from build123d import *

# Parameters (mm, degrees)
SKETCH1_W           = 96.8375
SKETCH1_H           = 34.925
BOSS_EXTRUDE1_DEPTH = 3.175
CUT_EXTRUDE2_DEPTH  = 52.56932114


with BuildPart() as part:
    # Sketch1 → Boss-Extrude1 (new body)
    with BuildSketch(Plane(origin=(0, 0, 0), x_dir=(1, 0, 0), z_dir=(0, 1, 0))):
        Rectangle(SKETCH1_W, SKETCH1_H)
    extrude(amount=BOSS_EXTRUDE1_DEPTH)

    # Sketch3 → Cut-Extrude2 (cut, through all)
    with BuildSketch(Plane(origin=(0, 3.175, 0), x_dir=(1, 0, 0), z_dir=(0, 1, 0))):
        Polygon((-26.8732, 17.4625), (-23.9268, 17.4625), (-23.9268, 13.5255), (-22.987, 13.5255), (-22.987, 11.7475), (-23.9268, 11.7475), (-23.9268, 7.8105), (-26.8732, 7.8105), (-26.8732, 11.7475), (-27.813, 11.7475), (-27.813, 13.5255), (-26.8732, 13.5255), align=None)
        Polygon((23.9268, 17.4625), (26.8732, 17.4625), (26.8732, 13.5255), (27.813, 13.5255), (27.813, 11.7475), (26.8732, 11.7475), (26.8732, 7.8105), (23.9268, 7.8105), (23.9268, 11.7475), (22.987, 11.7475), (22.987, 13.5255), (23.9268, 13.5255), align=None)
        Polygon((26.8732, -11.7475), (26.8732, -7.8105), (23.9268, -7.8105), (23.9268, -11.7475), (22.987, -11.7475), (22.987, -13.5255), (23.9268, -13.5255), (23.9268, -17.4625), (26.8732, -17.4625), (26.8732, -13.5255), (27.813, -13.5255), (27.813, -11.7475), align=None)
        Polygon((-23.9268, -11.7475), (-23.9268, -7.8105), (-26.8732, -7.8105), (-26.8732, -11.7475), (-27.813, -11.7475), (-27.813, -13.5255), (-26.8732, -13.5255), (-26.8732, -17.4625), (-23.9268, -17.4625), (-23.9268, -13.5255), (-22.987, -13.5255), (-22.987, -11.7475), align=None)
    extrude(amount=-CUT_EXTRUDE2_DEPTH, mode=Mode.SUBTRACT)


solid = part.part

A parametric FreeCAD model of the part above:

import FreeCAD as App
import Part
import Sketcher
Q = App.Units.Quantity


def add_polygon(sketch, points):
    """Adds a closed chain of lines whose ends are joined by coincident constraints."""
    first, n = sketch.GeometryCount, len(points)
    for a, b in zip(points, points[1:] + points[:1]):
        sketch.addGeometry(Part.LineSegment(App.Vector(*a, 0), App.Vector(*b, 0)), False)
    for i in range(n):
        sketch.addConstraint(Sketcher.Constraint("Coincident", first + i, 2, first + (i + 1) % n, 1))

doc = App.newDocument("Part")
params = doc.addObject("Spreadsheet::Sheet", "Params")
for row, (alias, value) in enumerate([
    ("sketch1_width", "3.8125 in"),
    ("sketch1_height", "1.375 in"),
    ("pad1_length", "0.125 in"),
    ("sketch2_height", "0.07 in"),
    ("sketch2_width", "0.116 in"),
    ("sketch2_width2", "0.037 in"),
    ("sketch2_height2", "0.155 in"),
], start=1):
    params.set(f"A{row}", alias)
    params.set(f"B{row}", "=" + value)
    params.setAlias(f"B{row}", alias)

body = doc.addObject("PartDesign::Body", "Body")

sketch1 = body.newObject("Sketcher::SketchObject", "Sketch")
sketch1.AttachmentSupport = (doc.getObject("XZ_Plane"), [""])
sketch1.MapMode = "FlatFace"
add_polygon(sketch1, [(-48, -17), (-48, 17), (48, 17), (48, -17)])
sketch1.addConstraint([
    Sketcher.Constraint("Vertical", 0),
    Sketcher.Constraint("Horizontal", 1),
    Sketcher.Constraint("Vertical", 2),
    Sketcher.Constraint("Horizontal", 3),
    Sketcher.Constraint("Symmetric", 0, 2, 2, 2, -1, 1),
    Sketcher.Constraint("DistanceX", 1, 1, 1, 2, Q("3.8125 in")),
    Sketcher.Constraint("DistanceY", 0, 1, 0, 2, Q("1.375 in")),
])
sketch1.setExpression("Constraints[9]", "Params.sketch1_width")
sketch1.setExpression("Constraints[10]", "Params.sketch1_height")
pad1 = body.newObject("PartDesign::Pad", "Pad")
pad1.Profile = sketch1
pad1.setExpression("Length", "Params.pad1_length")
pad1.Reversed = True

sketch2 = body.newObject("Sketcher::SketchObject", "Sketch001")
sketch2.AttachmentSupport = (doc.getObject("XZ_Plane"), [""])
sketch2.MapMode = "FlatFace"
sketch2.AttachmentOffset = App.Placement(App.Vector(0, 0, -0.125 * 25.4), App.Rotation())
add_polygon(sketch2, [(-23.9, -17.5), (-26.9, -17.5), (-26.9, -13.5), (-27.8, -13.5), (-27.8, -11.7), (-26.9, -11.7), (-26.9, -7.8), (-23.9, -7.8), (-23.9, -11.7), (-23, -11.7), (-23, -13.5), (-23.9, -13.5)])
add_polygon(sketch2, [(26.9, -17.5), (23.9, -17.5), (23.9, -13.5), (23, -13.5), (23, -11.7), (23.9, -11.7), (23.9, -7.8), (26.9, -7.8), (26.9, -11.7), (27.8, -11.7), (27.8, -13.5), (26.9, -13.5)])
add_polygon(sketch2, [(26.9, 11.7), (26.9, 7.8), (23.9, 7.8), (23.9, 11.7), (23, 11.7), (23, 13.5), (23.9, 13.5), (23.9, 17.5), (26.9, 17.5), (26.9, 13.5), (27.8, 13.5), (27.8, 11.7)])
add_polygon(sketch2, [(-23.9, 11.7), (-23.9, 7.8), (-26.9, 7.8), (-26.9, 11.7), (-27.8, 11.7), (-27.8, 13.5), (-26.9, 13.5), (-26.9, 17.5), (-23.9, 17.5), (-23.9, 13.5), (-23, 13.5), (-23, 11.7)])
sketch2.addConstraint([
    Sketcher.Constraint("Horizontal", 0),
    Sketcher.Constraint("Vertical", 1),
    Sketcher.Constraint("Horizontal", 2),
    Sketcher.Constraint("Vertical", 3),
    Sketcher.Constraint("Horizontal", 4),
    Sketcher.Constraint("Vertical", 5),
    Sketcher.Constraint("Horizontal", 6),
    Sketcher.Constraint("Vertical", 7),
    Sketcher.Constraint("Horizontal", 8),
    Sketcher.Constraint("Vertical", 9),
    Sketcher.Constraint("Horizontal", 10),
    Sketcher.Constraint("Vertical", 11),
    Sketcher.Constraint("Horizontal", 12),
    Sketcher.Constraint("Vertical", 13),
    Sketcher.Constraint("Horizontal", 14),
    Sketcher.Constraint("Vertical", 15),
    Sketcher.Constraint("Horizontal", 16),
    Sketcher.Constraint("Vertical", 17),
    Sketcher.Constraint("Horizontal", 18),
    Sketcher.Constraint("Vertical", 19),
    Sketcher.Constraint("Horizontal", 20),
    Sketcher.Constraint("Vertical", 21),
    Sketcher.Constraint("Horizontal", 22),
    Sketcher.Constraint("Vertical", 23),
    Sketcher.Constraint("Vertical", 24),
    Sketcher.Constraint("Horizontal", 25),
    Sketcher.Constraint("Vertical", 26),
    Sketcher.Constraint("Horizontal", 27),
    Sketcher.Constraint("Vertical", 28),
    Sketcher.Constraint("Horizontal", 29),
    Sketcher.Constraint("Vertical", 30),
    Sketcher.Constraint("Horizontal", 31),
    Sketcher.Constraint("Vertical", 32),
    Sketcher.Constraint("Horizontal", 33),
    Sketcher.Constraint("Vertical", 34),
    Sketcher.Constraint("Horizontal", 35),
    Sketcher.Constraint("Vertical", 36),
    Sketcher.Constraint("Horizontal", 37),
    Sketcher.Constraint("Vertical", 38),
    Sketcher.Constraint("Horizontal", 39),
    Sketcher.Constraint("Vertical", 40),
    Sketcher.Constraint("Horizontal", 41),
    Sketcher.Constraint("Vertical", 42),
    Sketcher.Constraint("Horizontal", 43),
    Sketcher.Constraint("Vertical", 44),
    Sketcher.Constraint("Horizontal", 45),
    Sketcher.Constraint("Vertical", 46),
    Sketcher.Constraint("Horizontal", 47),
    Sketcher.Constraint("Symmetric", 5, 2, 24, 2, -1, 1),
    Sketcher.Constraint("Symmetric", 7, 2, 26, 2, -1, 1),
    Sketcher.Constraint("Symmetric", 9, 2, 28, 2, -1, 1),
    Sketcher.Constraint("Symmetric", 11, 2, 30, 2, -1, 1),
    Sketcher.Constraint("Symmetric", 1, 2, 32, 2, -1, 1),
    Sketcher.Constraint("Symmetric", 3, 2, 34, 2, -1, 1),
    Sketcher.Constraint("Symmetric", 17, 2, 36, 2, -1, 1),
    Sketcher.Constraint("Symmetric", 19, 2, 38, 2, -1, 1),
    Sketcher.Constraint("Symmetric", 21, 2, 40, 2, -1, 1),
    Sketcher.Constraint("Symmetric", 23, 2, 42, 2, -1, 1),
    Sketcher.Constraint("Symmetric", 13, 2, 44, 2, -1, 1),
    Sketcher.Constraint("Symmetric", 15, 2, 46, 2, -1, 1),
    Sketcher.Constraint("Symmetric", 11, 2, 12, 2, -2),
    Sketcher.Constraint("Symmetric", 9, 2, 14, 2, -2),
    Sketcher.Constraint("Symmetric", 7, 2, 16, 2, -2),
    Sketcher.Constraint("Symmetric", 5, 2, 18, 2, -2),
    Sketcher.Constraint("Symmetric", 3, 2, 20, 2, -2),
    Sketcher.Constraint("Symmetric", 1, 2, 22, 2, -2),
    Sketcher.Constraint("Horizontal", 4, 2, 7, 2),
    Sketcher.Constraint("Horizontal", 2, 2, 9, 2),
    Sketcher.Constraint("Vertical", 1, 2, 4, 2),
    Sketcher.Constraint("Vertical", 7, 2, 10, 2),
    Sketcher.Constraint("Equal", 4, 8),
    Sketcher.Constraint("Equal", 1, 5),
    Sketcher.Constraint("DistanceY", 3, 1, 3, 2, Q("0.07 in")),
    Sketcher.Constraint("DistanceX", 0, 2, 0, 1, Q("0.116 in")),
    Sketcher.Constraint("DistanceX", 2, 2, 2, 1, Q("0.037 in")),
    Sketcher.Constraint("DistanceY", 1, 1, 1, 2, Q("0.155 in")),
    Sketcher.Constraint("DistanceX", 9, 2, 14, 2, Q("1.81 in")),
    Sketcher.Constraint("DistanceY", 19, 2, 24, 2, Q("0.77 in")),
])
sketch2.setExpression("Constraints[120]", "Params.sketch2_height")
sketch2.setExpression("Constraints[121]", "Params.sketch2_width")
sketch2.setExpression("Constraints[122]", "Params.sketch2_width2")
sketch2.setExpression("Constraints[123]", "Params.sketch2_height2")
pocket1 = body.newObject("PartDesign::Pocket", "Pocket")
pocket1.Profile = sketch2
pocket1.Type = "ThroughAll"
pocket1.Reversed = True

doc.recompute()
